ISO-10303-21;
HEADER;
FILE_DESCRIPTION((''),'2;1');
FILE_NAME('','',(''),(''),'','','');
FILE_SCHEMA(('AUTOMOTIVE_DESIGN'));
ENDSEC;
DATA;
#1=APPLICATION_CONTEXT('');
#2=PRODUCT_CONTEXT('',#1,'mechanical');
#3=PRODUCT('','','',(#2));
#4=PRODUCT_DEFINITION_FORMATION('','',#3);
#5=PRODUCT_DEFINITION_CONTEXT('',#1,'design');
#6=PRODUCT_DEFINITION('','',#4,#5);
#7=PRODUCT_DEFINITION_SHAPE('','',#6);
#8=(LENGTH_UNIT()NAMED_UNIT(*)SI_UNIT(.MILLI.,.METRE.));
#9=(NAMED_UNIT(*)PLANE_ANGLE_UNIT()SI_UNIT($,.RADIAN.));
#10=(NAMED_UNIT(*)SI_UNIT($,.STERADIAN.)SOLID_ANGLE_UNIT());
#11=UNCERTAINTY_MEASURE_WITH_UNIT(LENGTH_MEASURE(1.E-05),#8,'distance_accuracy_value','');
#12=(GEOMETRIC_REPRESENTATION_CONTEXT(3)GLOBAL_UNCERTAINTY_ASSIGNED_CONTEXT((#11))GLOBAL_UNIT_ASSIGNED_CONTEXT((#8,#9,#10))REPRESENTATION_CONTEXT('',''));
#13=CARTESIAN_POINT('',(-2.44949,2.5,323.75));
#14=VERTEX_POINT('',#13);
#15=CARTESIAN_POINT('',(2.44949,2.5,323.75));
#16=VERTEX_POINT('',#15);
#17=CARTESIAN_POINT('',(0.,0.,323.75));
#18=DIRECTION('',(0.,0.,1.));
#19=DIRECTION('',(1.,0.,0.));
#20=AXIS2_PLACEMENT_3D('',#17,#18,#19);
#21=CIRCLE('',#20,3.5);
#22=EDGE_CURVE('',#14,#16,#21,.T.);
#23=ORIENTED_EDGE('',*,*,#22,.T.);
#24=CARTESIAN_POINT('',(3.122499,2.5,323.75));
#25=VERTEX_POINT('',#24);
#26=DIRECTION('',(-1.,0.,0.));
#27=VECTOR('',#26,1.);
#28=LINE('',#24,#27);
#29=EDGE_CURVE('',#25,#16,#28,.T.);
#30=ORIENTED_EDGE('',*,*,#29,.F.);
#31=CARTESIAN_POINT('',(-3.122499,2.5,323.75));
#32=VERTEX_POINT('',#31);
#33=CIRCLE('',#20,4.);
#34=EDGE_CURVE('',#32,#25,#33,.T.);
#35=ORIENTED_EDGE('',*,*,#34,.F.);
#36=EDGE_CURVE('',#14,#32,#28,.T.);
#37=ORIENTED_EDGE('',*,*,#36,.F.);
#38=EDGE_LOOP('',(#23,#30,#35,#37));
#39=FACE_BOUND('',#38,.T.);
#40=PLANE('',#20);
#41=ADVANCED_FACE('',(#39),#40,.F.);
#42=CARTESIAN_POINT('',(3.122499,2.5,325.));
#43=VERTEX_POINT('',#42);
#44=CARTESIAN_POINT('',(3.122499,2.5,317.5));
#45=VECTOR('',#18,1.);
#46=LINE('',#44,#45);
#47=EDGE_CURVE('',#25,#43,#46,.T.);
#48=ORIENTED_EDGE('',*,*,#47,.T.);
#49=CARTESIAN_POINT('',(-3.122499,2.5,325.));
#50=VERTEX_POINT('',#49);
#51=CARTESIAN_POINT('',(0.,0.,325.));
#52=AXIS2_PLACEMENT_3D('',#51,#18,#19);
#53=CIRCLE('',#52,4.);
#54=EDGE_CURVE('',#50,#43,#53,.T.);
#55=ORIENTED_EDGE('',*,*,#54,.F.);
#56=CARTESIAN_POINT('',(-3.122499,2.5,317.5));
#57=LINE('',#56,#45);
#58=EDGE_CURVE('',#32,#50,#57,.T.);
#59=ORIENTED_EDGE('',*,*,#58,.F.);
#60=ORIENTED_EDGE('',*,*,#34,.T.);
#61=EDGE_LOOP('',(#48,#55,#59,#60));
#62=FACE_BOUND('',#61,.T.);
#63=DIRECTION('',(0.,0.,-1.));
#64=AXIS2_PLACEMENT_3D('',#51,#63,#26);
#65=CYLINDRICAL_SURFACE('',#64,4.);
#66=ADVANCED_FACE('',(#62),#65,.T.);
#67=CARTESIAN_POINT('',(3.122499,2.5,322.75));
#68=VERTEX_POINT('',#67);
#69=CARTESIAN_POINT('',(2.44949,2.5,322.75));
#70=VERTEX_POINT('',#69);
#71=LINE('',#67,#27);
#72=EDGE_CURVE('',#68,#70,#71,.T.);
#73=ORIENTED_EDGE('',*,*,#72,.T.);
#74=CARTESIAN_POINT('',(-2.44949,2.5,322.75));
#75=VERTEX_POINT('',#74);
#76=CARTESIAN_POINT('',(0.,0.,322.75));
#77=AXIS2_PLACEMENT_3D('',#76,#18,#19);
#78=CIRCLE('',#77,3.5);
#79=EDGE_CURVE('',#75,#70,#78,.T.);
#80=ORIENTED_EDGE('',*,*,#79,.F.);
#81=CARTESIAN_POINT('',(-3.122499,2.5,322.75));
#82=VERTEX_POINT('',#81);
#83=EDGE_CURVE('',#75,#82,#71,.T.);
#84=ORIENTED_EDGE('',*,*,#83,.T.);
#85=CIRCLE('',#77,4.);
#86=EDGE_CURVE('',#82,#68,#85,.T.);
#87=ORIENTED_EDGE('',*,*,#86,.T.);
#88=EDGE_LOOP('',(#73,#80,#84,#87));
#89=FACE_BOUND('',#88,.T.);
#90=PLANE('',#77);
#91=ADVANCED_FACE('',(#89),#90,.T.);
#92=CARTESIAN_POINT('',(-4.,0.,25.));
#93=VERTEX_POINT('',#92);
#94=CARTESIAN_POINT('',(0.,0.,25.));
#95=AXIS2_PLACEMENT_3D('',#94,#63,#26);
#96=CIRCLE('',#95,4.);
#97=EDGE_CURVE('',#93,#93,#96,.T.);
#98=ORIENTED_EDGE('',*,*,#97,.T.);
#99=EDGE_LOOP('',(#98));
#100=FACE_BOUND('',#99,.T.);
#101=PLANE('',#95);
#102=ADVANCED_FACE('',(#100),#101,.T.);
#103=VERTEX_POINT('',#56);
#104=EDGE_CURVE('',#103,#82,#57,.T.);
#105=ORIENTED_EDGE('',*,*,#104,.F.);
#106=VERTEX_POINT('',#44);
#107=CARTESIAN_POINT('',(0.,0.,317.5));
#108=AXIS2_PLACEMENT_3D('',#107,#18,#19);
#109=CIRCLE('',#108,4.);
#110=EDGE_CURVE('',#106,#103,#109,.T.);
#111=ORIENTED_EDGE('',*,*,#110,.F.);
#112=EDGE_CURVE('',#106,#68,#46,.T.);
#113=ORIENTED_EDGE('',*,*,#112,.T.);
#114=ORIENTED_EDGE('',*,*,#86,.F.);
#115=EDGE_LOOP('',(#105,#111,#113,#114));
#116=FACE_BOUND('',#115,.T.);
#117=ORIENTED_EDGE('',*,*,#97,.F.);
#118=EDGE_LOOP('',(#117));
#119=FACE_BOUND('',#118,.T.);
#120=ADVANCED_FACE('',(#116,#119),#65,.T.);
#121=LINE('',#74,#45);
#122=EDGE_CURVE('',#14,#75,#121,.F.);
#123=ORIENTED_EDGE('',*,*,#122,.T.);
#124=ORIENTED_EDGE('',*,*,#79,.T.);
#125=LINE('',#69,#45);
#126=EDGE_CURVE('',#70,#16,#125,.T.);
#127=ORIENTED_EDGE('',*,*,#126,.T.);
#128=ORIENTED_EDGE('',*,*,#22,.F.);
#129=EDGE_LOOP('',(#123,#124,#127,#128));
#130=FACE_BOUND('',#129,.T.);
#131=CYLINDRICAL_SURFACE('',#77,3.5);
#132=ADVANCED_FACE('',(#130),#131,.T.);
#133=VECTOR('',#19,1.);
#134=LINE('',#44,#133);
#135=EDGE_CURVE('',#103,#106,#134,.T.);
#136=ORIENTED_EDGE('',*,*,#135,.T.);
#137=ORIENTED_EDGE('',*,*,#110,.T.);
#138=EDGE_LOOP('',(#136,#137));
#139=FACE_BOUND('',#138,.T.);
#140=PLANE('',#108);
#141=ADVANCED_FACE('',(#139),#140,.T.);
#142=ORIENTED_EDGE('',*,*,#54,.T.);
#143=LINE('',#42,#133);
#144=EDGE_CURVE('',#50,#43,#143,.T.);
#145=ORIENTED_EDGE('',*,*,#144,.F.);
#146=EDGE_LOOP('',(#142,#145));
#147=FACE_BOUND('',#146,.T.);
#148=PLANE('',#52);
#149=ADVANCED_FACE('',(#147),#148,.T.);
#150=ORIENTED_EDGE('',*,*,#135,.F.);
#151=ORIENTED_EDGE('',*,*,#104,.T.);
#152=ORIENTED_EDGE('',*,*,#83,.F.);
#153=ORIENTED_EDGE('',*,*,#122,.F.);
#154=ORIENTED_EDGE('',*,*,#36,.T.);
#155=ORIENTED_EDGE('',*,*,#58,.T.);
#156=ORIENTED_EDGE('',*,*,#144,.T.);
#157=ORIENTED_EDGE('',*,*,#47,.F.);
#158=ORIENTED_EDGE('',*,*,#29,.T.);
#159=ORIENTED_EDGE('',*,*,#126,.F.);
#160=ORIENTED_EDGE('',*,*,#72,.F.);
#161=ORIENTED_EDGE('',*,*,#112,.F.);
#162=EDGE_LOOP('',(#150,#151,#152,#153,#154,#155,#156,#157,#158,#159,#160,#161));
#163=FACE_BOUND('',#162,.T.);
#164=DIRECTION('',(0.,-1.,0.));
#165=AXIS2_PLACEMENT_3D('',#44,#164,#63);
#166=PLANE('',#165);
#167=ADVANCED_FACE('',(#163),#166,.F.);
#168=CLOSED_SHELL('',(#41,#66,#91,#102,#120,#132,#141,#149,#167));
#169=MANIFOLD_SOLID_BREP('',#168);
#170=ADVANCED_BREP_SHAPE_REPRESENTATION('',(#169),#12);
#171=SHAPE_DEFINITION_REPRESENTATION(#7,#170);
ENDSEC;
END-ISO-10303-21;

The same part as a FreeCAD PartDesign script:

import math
import FreeCAD as App
import Part
import Sketcher
Q = App.Units.Quantity

doc = App.newDocument("Part")
body = doc.addObject("PartDesign::Body", "Body")

# Sketch on XY plane
sketch1 = doc.addObject("Sketcher::SketchObject", "Sketch")
body.addObject(sketch1)
sketch1.AttachmentSupport = (doc.XY_Plane, [""])
sketch1.MapMode = "FlatFace"
sketch1.addGeometry(Part.Circle(App.Vector(0, 0, 0), App.Vector(0, 0, 1), 4), False)
sketch1.addConstraint([
    Sketcher.Constraint("Coincident", 0, 3, -1, 1),
    Sketcher.Constraint("Diameter", 0, Q("8 mm")),
])
pad1 = doc.addObject("PartDesign::Pad", "Pad")
body.addObject(pad1)
pad1.Profile = sketch1
pad1.Length = 325

# Sketch on XY plane
sketch2 = doc.addObject("Sketcher::SketchObject", "Sketch001")
body.addObject(sketch2)
sketch2.AttachmentSupport = (doc.XY_Plane, [""])
sketch2.MapMode = "FlatFace"
sketch2.AttachmentOffset = App.Placement(App.Vector(0, 0, 325), App.Rotation())
sketch2.addGeometry([
    Part.LineSegment(App.Vector(-3.1, 2.5, 0), App.Vector(3.1, 2.5, 0)),
    Part.ArcOfCircle(Part.Circle(App.Vector(0, 0, 0), App.Vector(0, 0, 1), 4), math.radians(39), math.radians(141)),
], False)
sketch2.addConstraint([
    Sketcher.Constraint("Coincident", 0, 1, 1, 2),
    Sketcher.Constraint("Coincident", 1, 1, 0, 2),
    Sketcher.Constraint("Horizontal", 0),
    Sketcher.Constraint("Coincident", 1, 3, -1, 1),
    Sketcher.Constraint("Radius", 1, Q("4 mm")),
    Sketcher.Constraint("DistanceY", -1, 1, 0, 1, Q("2.5 mm")),
])
pocket1 = doc.addObject("PartDesign::Pocket", "Pocket")
body.addObject(pocket1)
pocket1.Profile = sketch2
pocket1.Length = 7.5

# Sketch on XY plane
sketch3 = doc.addObject("Sketcher::SketchObject", "Sketch002")
body.addObject(sketch3)
sketch3.AttachmentSupport = (doc.XY_Plane, [""])
sketch3.MapMode = "FlatFace"
sketch3.AttachmentOffset = App.Placement(App.Vector(0, 0, 323.75), App.Rotation())
sketch3.addGeometry([
    Part.Circle(App.Vector(0, 0, 0), App.Vector(0, 0, 1), 4),
    Part.Circle(App.Vector(0, 0, 0), App.Vector(0, 0, 1), 3.5),
], False)
sketch3.addConstraint([
    Sketcher.Constraint("Coincident", 0, 3, -1, 1),
    Sketcher.Constraint("Coincident", 1, 3, -1, 1),
    Sketcher.Constraint("Diameter", 0, Q("8 mm")),
    Sketcher.Constraint("Diameter", 1, Q("7 mm")),
])
pocket2 = doc.addObject("PartDesign::Pocket", "Pocket001")
body.addObject(pocket2)
pocket2.Profile = sketch3
pocket2.Length = 1

# Sketch on XY plane
sketch4 = doc.addObject("Sketcher::SketchObject", "Sketch003")
body.addObject(sketch4)
sketch4.AttachmentSupport = (doc.XY_Plane, [""])
sketch4.MapMode = "FlatFace"
sketch4.addGeometry(Part.Circle(App.Vector(0, 0, 0), App.Vector(0, 0, 1), 4), False)
sketch4.addConstraint([
    Sketcher.Constraint("Coincident", 0, 3, -1, 1),
    Sketcher.Constraint("Diameter", 0, Q("8 mm")),
])
pocket3 = doc.addObject("PartDesign::Pocket", "Pocket002")
body.addObject(pocket3)
pocket3.Profile = sketch4
pocket3.Length = 65
pocket3.Reversed = True

# Sketch on XY plane
sketch5 = doc.addObject("Sketcher::SketchObject", "Sketch004")
body.addObject(sketch5)
sketch5.AttachmentSupport = (doc.XY_Plane, [""])
sketch5.MapMode = "FlatFace"
sketch5.AttachmentOffset = App.Placement(App.Vector(0, 0, 65), App.Rotation())
sketch5.addGeometry(Part.Circle(App.Vector(0, 0, 0), App.Vector(0, 0, 1), 4), False)
sketch5.addConstraint([
    Sketcher.Constraint("Coincident", 0, 3, -1, 1),
    Sketcher.Constraint("Diameter", 0, Q("8 mm")),
])
pad2 = doc.addObject("PartDesign::Pad", "Pad001")
body.addObject(pad2)
pad2.Profile = sketch5
pad2.Length = 13
pad2.Reversed = True

# Sketch on XY plane
sketch6 = doc.addObject("Sketcher::SketchObject", "Sketch005")
body.addObject(sketch6)
sketch6.AttachmentSupport = (doc.XY_Plane, [""])
sketch6.MapMode = "FlatFace"
sketch6.AttachmentOffset = App.Placement(App.Vector(0, 0, 52), App.Rotation())
sketch6.addGeometry(Part.Circle(App.Vector(0, 0, 0), App.Vector(0, 0, 1), 4), False)
sketch6.addConstraint([
    Sketcher.Constraint("Coincident", 0, 3, -1, 1),
    Sketcher.Constraint("Diameter", 0, Q("8 mm")),
])
pad3 = doc.addObject("PartDesign::Pad", "Pad002")
body.addObject(pad3)
pad3.Profile = sketch6
pad3.Length = 10
pad3.Reversed = True

# Sketch on XY plane
sketch7 = doc.addObject("Sketcher::SketchObject", "Sketch006")
body.addObject(sketch7)
sketch7.AttachmentSupport = (doc.XY_Plane, [""])
sketch7.MapMode = "FlatFace"
sketch7.AttachmentOffset = App.Placement(App.Vector(0, 0, 42), App.Rotation())
sketch7.addGeometry(Part.Circle(App.Vector(0, 0, 0), App.Vector(0, 0, 1), 4), False)
sketch7.addConstraint([
    Sketcher.Constraint("Coincident", 0, 3, -1, 1),
    Sketcher.Constraint("Diameter", 0, Q("8 mm")),
])
pad4 = doc.addObject("PartDesign::Pad", "Pad003")
body.addObject(pad4)
pad4.Profile = sketch7
pad4.Length = 40
pad4.Reversed = True

# Sketch on XY plane
sketch8 = doc.addObject("Sketcher::SketchObject", "Sketch007")
body.addObject(sketch8)
sketch8.AttachmentSupport = (doc.XY_Plane, [""])
sketch8.MapMode = "FlatFace"
sketch8.AttachmentOffset = App.Placement(App.Vector(0, 0, 2), App.Rotation())
sketch8.addGeometry(Part.Circle(App.Vector(0, 0, 0), App.Vector(0, 0, 1), 4), False)
sketch8.addConstraint([
    Sketcher.Constraint("Coincident", 0, 3, -1, 1),
    Sketcher.Constraint("Diameter", 0, Q("8 mm")),
])
pocket4 = doc.addObject("PartDesign::Pocket", "Pocket003")
body.addObject(pocket4)
pocket4.Profile = sketch8
pocket4.Length = 30
pocket4.Reversed = True

# Sketch on XY plane
sketch9 = doc.addObject("Sketcher::SketchObject", "Sketch008")
body.addObject(sketch9)
sketch9.AttachmentSupport = (doc.XY_Plane, [""])
sketch9.MapMode = "FlatFace"
sketch9.AttachmentOffset = App.Placement(App.Vector(0, 0, 32), App.Rotation())
sketch9.addGeometry(Part.Circle(App.Vector(0, 0, 0), App.Vector(0, 0, 1), 4), False)
sketch9.addConstraint([
    Sketcher.Constraint("Coincident", 0, 3, -1, 1),
    Sketcher.Constraint("Diameter", 0, Q("8 mm")),
])
pocket5 = doc.addObject("PartDesign::Pocket", "Pocket004")
body.addObject(pocket5)
pocket5.Profile = sketch9
pocket5.Length = 61
pocket5.Reversed = True

# Sketch on XY plane
sketch10 = doc.addObject("Sketcher::SketchObject", "Sketch009")
body.addObject(sketch10)
sketch10.AttachmentSupport = (doc.XY_Plane, [""])
sketch10.MapMode = "FlatFace"
sketch10.AttachmentOffset = App.Placement(App.Vector(0, 0, 93), App.Rotation())
sketch10.addGeometry(Part.Circle(App.Vector(0, 0, 0), App.Vector(0, 0, 1), 4), False)
sketch10.addConstraint([
    Sketcher.Constraint("Coincident", 0, 3, -1, 1),
    Sketcher.Constraint("Diameter", 0, Q("8 mm")),
])
pad5 = doc.addObject("PartDesign::Pad", "Pad004")
body.addObject(pad5)
pad5.Profile = sketch10
pad5.Length = 68
pad5.Reversed = True

doc.recompute()
